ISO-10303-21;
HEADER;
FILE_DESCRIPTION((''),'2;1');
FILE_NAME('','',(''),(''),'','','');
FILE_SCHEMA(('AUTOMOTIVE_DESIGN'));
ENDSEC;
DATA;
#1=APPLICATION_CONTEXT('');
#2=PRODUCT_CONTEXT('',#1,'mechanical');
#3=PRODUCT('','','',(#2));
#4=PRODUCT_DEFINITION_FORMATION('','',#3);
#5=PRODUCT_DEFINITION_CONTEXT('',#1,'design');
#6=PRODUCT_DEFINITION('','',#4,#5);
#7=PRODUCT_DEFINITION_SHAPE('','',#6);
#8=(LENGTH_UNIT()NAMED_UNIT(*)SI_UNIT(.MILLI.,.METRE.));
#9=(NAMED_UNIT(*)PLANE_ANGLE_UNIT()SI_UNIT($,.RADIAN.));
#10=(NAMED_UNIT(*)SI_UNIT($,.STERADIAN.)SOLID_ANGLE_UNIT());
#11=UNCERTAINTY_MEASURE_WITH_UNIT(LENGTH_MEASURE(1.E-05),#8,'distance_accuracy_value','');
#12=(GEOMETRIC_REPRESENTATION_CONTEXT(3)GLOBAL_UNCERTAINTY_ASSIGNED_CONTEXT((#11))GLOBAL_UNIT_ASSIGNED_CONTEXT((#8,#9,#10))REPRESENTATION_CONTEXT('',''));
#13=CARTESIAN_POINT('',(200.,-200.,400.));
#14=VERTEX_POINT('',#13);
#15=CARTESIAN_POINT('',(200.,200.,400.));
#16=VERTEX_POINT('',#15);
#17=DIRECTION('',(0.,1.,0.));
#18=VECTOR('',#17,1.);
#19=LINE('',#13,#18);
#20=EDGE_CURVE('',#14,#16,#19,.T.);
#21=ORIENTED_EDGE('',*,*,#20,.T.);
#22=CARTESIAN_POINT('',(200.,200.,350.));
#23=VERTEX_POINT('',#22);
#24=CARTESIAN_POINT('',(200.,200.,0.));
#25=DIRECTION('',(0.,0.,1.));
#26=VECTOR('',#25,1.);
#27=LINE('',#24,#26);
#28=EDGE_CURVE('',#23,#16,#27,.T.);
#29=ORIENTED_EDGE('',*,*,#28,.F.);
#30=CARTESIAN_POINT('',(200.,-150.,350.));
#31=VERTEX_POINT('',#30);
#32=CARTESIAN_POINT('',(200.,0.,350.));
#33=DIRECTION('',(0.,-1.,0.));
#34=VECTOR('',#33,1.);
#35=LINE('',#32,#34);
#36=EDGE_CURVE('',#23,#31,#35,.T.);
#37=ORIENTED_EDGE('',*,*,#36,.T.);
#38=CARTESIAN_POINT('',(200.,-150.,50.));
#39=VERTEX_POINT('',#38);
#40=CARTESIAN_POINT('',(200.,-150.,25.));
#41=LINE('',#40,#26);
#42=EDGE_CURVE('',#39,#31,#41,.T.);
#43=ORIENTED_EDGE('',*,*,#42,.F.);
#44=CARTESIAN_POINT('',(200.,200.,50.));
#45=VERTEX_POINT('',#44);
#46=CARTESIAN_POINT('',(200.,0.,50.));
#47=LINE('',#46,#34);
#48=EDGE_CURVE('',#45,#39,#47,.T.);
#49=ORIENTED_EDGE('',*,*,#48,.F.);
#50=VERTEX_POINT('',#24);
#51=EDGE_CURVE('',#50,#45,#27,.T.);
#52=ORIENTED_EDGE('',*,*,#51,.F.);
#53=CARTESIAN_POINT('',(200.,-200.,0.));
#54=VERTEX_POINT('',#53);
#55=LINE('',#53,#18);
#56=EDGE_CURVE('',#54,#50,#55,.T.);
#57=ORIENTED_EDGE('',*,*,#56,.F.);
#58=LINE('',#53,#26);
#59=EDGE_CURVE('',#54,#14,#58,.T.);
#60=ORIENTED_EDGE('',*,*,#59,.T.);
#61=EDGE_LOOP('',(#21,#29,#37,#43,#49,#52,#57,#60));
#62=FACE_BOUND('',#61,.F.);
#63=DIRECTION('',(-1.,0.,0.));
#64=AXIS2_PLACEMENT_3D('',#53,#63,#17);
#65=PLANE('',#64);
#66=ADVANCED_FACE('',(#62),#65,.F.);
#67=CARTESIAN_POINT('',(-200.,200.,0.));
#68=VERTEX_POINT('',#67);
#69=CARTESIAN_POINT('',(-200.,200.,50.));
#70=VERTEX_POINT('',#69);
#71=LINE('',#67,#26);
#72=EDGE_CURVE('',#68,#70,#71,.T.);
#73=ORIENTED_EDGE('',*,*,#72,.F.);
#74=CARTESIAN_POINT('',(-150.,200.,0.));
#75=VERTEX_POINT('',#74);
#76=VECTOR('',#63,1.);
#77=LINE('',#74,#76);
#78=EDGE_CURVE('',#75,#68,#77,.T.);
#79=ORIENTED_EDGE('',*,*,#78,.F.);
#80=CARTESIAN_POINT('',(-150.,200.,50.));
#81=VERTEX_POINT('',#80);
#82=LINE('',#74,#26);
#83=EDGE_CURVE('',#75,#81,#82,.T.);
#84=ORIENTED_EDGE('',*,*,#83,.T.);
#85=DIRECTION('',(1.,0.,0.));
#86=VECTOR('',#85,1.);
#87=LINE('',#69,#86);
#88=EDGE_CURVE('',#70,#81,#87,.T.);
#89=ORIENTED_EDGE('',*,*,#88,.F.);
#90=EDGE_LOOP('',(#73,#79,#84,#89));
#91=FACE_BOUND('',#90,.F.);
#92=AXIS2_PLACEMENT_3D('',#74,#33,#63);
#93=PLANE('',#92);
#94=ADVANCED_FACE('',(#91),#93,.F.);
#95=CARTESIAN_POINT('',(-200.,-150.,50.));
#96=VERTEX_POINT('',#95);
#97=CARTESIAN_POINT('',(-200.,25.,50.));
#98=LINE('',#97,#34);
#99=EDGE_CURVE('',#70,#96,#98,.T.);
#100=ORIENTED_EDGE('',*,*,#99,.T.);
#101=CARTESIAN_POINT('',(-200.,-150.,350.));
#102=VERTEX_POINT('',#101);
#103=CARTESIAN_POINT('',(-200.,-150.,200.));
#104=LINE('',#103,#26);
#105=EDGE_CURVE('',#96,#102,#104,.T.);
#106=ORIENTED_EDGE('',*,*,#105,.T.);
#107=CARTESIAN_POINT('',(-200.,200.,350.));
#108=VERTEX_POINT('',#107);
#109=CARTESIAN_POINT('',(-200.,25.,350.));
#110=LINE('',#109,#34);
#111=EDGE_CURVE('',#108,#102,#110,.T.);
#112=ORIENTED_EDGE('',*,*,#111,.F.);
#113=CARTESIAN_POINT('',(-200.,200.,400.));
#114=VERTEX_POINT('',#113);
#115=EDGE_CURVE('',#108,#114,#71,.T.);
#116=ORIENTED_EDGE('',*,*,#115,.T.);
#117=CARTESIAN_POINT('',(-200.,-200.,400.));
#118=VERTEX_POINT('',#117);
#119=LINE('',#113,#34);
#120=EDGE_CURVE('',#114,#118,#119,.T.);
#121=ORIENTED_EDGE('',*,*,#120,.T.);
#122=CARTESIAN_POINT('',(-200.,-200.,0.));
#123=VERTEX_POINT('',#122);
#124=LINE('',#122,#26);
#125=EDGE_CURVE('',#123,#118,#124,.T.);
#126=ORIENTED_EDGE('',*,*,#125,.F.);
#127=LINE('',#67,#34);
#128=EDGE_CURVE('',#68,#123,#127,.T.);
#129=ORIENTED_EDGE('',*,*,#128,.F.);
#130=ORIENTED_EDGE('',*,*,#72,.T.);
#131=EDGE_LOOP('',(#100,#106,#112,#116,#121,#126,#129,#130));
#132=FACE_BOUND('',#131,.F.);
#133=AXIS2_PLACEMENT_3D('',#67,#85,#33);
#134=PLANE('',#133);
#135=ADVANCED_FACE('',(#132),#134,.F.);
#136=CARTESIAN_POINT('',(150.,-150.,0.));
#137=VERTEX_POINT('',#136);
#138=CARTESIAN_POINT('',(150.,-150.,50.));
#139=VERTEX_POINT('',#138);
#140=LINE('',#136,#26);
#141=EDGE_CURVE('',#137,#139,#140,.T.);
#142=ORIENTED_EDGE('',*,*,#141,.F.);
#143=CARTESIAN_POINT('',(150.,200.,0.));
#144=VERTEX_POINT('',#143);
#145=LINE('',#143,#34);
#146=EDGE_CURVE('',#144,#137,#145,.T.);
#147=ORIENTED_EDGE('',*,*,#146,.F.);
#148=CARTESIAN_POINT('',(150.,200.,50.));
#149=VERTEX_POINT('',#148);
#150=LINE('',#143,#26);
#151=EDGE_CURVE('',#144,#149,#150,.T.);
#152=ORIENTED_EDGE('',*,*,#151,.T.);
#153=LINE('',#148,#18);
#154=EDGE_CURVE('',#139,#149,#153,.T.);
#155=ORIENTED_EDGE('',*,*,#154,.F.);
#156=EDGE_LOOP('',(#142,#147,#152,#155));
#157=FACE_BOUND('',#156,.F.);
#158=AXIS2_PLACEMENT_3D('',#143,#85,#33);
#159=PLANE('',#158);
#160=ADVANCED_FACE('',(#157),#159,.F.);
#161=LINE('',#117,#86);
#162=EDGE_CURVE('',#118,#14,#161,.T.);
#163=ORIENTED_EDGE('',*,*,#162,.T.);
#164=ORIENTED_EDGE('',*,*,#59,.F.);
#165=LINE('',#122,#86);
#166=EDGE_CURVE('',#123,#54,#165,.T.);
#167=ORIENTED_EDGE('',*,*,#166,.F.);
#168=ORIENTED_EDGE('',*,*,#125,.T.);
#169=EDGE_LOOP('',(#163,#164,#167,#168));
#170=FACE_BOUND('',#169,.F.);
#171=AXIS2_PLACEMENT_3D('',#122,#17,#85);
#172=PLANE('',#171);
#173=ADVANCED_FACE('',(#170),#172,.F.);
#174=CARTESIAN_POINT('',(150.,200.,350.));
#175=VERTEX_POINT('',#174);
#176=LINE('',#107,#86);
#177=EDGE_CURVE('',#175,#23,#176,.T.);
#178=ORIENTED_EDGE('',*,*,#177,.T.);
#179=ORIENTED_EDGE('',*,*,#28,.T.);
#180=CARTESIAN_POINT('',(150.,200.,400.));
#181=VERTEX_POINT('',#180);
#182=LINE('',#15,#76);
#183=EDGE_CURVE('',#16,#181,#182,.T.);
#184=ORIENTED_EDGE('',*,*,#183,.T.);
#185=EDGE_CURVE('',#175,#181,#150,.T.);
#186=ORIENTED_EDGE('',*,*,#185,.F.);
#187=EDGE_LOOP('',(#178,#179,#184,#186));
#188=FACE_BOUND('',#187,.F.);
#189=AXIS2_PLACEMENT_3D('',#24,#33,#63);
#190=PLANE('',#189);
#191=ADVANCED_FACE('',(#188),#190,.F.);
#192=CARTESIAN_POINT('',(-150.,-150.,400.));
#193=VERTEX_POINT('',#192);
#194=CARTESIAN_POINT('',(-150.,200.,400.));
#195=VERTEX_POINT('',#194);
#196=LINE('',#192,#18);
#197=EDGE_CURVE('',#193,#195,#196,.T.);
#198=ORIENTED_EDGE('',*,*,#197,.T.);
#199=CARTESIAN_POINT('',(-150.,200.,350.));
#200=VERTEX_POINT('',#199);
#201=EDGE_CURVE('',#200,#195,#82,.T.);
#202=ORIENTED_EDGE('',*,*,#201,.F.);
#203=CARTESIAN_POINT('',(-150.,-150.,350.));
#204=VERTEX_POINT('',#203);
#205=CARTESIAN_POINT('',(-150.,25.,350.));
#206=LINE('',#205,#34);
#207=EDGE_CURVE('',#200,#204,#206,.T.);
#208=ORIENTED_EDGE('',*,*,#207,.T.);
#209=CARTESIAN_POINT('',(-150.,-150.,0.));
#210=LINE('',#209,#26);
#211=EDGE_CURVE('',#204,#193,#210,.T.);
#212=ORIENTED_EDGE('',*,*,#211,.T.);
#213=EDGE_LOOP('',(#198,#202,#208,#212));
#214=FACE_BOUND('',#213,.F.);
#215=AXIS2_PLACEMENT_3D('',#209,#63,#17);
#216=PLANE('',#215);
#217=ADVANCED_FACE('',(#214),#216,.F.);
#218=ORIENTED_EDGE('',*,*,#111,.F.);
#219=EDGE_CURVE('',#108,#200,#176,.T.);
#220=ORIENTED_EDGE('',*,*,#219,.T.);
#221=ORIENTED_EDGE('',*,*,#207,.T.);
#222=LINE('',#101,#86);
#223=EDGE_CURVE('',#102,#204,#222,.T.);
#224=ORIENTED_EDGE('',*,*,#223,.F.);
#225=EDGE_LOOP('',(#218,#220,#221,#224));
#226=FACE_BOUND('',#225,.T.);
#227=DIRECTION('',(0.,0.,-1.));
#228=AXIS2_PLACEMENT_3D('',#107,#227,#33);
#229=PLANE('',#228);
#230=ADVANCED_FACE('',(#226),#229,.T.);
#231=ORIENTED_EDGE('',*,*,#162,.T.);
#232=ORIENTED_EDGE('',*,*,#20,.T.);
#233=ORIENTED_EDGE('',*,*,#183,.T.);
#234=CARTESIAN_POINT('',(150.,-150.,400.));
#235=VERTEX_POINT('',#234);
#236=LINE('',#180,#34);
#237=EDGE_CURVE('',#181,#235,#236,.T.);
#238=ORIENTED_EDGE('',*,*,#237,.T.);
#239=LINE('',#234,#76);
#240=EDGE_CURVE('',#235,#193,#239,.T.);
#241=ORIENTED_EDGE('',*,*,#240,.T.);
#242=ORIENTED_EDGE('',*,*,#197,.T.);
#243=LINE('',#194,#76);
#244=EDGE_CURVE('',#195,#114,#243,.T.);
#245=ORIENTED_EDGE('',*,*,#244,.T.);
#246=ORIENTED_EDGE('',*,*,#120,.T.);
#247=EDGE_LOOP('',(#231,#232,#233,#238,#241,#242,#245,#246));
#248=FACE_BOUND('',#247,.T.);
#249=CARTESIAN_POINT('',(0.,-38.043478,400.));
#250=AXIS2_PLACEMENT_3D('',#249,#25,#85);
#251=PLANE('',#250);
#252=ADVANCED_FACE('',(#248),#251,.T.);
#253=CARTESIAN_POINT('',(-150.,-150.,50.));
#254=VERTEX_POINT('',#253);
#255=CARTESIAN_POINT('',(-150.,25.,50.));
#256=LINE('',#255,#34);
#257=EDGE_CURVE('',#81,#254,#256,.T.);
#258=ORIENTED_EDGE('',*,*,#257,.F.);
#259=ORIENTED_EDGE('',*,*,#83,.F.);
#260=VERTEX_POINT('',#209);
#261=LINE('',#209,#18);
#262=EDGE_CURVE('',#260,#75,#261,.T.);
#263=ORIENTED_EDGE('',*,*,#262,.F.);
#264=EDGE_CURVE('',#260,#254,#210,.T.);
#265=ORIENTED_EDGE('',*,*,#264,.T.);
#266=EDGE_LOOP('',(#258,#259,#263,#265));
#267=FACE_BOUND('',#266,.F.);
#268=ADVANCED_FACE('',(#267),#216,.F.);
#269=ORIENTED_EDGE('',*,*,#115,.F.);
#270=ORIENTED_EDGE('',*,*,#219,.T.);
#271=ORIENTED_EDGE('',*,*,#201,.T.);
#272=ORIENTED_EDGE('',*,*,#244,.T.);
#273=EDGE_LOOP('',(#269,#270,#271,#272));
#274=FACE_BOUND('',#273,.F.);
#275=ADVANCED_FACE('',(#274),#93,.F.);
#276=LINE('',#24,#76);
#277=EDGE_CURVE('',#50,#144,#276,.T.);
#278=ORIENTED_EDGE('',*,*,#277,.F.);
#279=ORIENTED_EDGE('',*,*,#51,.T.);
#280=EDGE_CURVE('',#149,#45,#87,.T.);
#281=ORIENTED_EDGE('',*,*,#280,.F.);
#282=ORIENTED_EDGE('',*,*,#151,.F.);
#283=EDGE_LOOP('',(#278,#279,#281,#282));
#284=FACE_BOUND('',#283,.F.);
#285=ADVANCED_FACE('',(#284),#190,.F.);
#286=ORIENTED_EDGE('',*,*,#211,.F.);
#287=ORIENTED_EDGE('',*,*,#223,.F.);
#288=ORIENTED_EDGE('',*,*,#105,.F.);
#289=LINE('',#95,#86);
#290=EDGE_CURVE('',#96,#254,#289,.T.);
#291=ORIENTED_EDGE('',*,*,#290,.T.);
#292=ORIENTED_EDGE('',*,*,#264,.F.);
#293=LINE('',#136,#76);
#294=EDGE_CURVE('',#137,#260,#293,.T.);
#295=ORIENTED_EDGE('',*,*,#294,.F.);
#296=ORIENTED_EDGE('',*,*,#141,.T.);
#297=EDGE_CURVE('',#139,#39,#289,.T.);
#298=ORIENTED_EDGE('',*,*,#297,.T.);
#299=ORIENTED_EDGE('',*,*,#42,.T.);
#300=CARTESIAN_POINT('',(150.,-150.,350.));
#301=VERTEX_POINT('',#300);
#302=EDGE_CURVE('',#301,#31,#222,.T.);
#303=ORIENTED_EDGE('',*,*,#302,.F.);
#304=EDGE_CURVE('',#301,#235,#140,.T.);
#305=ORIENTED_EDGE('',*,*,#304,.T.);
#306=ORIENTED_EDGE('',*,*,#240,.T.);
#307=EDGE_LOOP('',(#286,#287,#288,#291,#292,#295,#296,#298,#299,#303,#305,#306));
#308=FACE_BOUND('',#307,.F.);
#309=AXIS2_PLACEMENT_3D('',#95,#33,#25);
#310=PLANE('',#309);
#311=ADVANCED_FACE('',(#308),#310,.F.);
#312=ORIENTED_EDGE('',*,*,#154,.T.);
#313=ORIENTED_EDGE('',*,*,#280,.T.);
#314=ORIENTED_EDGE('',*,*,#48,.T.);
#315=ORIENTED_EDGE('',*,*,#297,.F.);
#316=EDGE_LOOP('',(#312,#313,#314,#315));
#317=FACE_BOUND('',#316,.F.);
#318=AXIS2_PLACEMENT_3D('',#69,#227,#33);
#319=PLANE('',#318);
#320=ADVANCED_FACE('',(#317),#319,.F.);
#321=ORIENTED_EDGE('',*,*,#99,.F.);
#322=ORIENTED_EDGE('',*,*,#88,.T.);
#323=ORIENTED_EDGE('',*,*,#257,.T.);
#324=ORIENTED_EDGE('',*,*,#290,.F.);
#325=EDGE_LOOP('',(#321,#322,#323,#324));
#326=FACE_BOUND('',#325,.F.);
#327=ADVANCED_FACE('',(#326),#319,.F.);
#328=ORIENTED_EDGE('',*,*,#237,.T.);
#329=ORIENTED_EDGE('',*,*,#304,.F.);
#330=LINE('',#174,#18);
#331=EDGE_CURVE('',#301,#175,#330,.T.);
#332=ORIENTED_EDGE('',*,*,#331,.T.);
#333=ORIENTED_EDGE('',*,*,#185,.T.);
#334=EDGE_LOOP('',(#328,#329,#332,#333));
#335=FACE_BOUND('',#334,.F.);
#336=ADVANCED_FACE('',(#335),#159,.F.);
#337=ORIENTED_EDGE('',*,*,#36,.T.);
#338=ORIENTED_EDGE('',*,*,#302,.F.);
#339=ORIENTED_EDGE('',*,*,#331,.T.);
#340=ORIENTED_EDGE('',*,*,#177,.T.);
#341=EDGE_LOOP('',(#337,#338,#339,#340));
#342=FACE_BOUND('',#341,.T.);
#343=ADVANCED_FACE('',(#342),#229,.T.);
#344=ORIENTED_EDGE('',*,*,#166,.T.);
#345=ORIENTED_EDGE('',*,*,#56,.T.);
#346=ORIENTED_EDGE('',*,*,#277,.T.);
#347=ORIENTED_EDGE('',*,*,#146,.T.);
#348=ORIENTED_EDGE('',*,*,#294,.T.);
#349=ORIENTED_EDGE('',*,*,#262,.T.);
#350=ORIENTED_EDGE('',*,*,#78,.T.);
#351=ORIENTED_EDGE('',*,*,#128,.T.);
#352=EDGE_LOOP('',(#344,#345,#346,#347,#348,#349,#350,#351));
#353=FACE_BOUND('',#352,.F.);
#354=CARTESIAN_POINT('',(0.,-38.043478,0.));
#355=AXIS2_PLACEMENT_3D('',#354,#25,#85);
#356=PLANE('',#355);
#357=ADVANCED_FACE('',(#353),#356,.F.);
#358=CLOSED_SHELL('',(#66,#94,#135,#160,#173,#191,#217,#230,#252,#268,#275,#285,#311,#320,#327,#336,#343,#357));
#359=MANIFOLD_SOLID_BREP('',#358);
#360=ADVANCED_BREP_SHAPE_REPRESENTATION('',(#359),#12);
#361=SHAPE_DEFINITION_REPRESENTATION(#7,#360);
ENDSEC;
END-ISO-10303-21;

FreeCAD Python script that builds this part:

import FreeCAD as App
import Part
import Sketcher

V = App.Vector
Q = App.Units.Quantity

doc = App.newDocument("Part")
body = doc.addObject("PartDesign::Body", "Body")

# Sketch on XY plane
sketch1 = doc.addObject("Sketcher::SketchObject", "Sketch")
body.addObject(sketch1)
sketch1.AttachmentSupport = (doc.XY_Plane, [""])
sketch1.MapMode = "FlatFace"
sketch1.addGeometry([
    Part.LineSegment(V(-200, -200, 0), V(200, -200, 0)),  # 0
    Part.LineSegment(V(200, -200, 0), V(200, 200, 0)),  # 1
    Part.LineSegment(V(200, 200, 0), V(150, 200, 0)),  # 2
    Part.LineSegment(V(150, 200, 0), V(150, -150, 0)),  # 3
    Part.LineSegment(V(150, -150, 0), V(-150, -150, 0)),  # 4
    Part.LineSegment(V(-150, -150, 0), V(-150, 200, 0)),  # 5
    Part.LineSegment(V(-150, 200, 0), V(-200, 200, 0)),  # 6
    Part.LineSegment(V(-200, 200, 0), V(-200, -200, 0)),  # 7
], False)
sketch1.addConstraint([
    Sketcher.Constraint("Coincident", 0, 2, 1, 1),
    Sketcher.Constraint("Coincident", 1, 2, 2, 1),
    Sketcher.Constraint("Coincident", 2, 2, 3, 1),
    Sketcher.Constraint("Coincident", 3, 2, 4, 1),
    Sketcher.Constraint("Coincident", 4, 2, 5, 1),
    Sketcher.Constraint("Coincident", 5, 2, 6, 1),
    Sketcher.Constraint("Coincident", 6, 2, 7, 1),
    Sketcher.Constraint("Coincident", 7, 2, 0, 1),
    Sketcher.Constraint("Horizontal", 0),
    Sketcher.Constraint("Vertical", 1),
    Sketcher.Constraint("Horizontal", 2),
    Sketcher.Constraint("Vertical", 3),
    Sketcher.Constraint("Horizontal", 4),
    Sketcher.Constraint("Vertical", 5),
    Sketcher.Constraint("Horizontal", 6),
    Sketcher.Constraint("Vertical", 7),
    Sketcher.Constraint("Symmetric", 0, 2, 6, 2, -1, 1),
    Sketcher.Constraint("Symmetric", 2, 2, 5, 2, -2),
    Sketcher.Constraint("Equal", 0, 1),
    Sketcher.Constraint("DistanceX", 0, 1, 0, 2, Q("400 mm")),
    Sketcher.Constraint("DistanceX", 2, 2, 2, 1, Q("50 mm")),
    Sketcher.Constraint("DistanceY", 3, 2, 3, 1, Q("350 mm")),
])
pad1 = doc.addObject("PartDesign::Pad", "Pad")
body.addObject(pad1)
pad1.Profile = sketch1
pad1.Length = 400

# Sketch on YZ plane
sketch2 = doc.addObject("Sketcher::SketchObject", "Sketch001")
body.addObject(sketch2)
sketch2.AttachmentSupport = (doc.YZ_Plane, [""])
sketch2.MapMode = "FlatFace"
sketch2.AttachmentOffset = App.Placement(V(0, 0, -200), App.Rotation())
sketch2.addGeometry([
    Part.LineSegment(V(200, 350, 0), V(200, 50, 0)),
    Part.LineSegment(V(200, 50, 0), V(-150, 50, 0)),
    Part.LineSegment(V(-150, 50, 0), V(-150, 350, 0)),
    Part.LineSegment(V(-150, 350, 0), V(200, 350, 0)),
], False)
sketch2.addConstraint([
    Sketcher.Constraint("Coincident", 0, 2, 1, 1),
    Sketcher.Constraint("Coincident", 1, 2, 2, 1),
    Sketcher.Constraint("Coincident", 2, 2, 3, 1),
    Sketcher.Constraint("Coincident", 3, 2, 0, 1),
    Sketcher.Constraint("Vertical", 0),
    Sketcher.Constraint("Horizontal", 1),
    Sketcher.Constraint("Vertical", 2),
    Sketcher.Constraint("Horizontal", 3),
    Sketcher.Constraint("DistanceX", 1, 2, 1, 1, Q("350 mm")),
    Sketcher.Constraint("DistanceY", 0, 2, 0, 1, Q("300 mm")),
    Sketcher.Constraint("DistanceX", -1, 1, 0, 2, Q("200 mm")),
    Sketcher.Constraint("DistanceY", -1, 1, 0, 2, Q("50 mm")),
])
pocket1 = doc.addObject("PartDesign::Pocket", "Pocket")
body.addObject(pocket1)
pocket1.Profile = sketch2
pocket1.Type = "ThroughAll"
pocket1.Reversed = True

doc.recompute()
